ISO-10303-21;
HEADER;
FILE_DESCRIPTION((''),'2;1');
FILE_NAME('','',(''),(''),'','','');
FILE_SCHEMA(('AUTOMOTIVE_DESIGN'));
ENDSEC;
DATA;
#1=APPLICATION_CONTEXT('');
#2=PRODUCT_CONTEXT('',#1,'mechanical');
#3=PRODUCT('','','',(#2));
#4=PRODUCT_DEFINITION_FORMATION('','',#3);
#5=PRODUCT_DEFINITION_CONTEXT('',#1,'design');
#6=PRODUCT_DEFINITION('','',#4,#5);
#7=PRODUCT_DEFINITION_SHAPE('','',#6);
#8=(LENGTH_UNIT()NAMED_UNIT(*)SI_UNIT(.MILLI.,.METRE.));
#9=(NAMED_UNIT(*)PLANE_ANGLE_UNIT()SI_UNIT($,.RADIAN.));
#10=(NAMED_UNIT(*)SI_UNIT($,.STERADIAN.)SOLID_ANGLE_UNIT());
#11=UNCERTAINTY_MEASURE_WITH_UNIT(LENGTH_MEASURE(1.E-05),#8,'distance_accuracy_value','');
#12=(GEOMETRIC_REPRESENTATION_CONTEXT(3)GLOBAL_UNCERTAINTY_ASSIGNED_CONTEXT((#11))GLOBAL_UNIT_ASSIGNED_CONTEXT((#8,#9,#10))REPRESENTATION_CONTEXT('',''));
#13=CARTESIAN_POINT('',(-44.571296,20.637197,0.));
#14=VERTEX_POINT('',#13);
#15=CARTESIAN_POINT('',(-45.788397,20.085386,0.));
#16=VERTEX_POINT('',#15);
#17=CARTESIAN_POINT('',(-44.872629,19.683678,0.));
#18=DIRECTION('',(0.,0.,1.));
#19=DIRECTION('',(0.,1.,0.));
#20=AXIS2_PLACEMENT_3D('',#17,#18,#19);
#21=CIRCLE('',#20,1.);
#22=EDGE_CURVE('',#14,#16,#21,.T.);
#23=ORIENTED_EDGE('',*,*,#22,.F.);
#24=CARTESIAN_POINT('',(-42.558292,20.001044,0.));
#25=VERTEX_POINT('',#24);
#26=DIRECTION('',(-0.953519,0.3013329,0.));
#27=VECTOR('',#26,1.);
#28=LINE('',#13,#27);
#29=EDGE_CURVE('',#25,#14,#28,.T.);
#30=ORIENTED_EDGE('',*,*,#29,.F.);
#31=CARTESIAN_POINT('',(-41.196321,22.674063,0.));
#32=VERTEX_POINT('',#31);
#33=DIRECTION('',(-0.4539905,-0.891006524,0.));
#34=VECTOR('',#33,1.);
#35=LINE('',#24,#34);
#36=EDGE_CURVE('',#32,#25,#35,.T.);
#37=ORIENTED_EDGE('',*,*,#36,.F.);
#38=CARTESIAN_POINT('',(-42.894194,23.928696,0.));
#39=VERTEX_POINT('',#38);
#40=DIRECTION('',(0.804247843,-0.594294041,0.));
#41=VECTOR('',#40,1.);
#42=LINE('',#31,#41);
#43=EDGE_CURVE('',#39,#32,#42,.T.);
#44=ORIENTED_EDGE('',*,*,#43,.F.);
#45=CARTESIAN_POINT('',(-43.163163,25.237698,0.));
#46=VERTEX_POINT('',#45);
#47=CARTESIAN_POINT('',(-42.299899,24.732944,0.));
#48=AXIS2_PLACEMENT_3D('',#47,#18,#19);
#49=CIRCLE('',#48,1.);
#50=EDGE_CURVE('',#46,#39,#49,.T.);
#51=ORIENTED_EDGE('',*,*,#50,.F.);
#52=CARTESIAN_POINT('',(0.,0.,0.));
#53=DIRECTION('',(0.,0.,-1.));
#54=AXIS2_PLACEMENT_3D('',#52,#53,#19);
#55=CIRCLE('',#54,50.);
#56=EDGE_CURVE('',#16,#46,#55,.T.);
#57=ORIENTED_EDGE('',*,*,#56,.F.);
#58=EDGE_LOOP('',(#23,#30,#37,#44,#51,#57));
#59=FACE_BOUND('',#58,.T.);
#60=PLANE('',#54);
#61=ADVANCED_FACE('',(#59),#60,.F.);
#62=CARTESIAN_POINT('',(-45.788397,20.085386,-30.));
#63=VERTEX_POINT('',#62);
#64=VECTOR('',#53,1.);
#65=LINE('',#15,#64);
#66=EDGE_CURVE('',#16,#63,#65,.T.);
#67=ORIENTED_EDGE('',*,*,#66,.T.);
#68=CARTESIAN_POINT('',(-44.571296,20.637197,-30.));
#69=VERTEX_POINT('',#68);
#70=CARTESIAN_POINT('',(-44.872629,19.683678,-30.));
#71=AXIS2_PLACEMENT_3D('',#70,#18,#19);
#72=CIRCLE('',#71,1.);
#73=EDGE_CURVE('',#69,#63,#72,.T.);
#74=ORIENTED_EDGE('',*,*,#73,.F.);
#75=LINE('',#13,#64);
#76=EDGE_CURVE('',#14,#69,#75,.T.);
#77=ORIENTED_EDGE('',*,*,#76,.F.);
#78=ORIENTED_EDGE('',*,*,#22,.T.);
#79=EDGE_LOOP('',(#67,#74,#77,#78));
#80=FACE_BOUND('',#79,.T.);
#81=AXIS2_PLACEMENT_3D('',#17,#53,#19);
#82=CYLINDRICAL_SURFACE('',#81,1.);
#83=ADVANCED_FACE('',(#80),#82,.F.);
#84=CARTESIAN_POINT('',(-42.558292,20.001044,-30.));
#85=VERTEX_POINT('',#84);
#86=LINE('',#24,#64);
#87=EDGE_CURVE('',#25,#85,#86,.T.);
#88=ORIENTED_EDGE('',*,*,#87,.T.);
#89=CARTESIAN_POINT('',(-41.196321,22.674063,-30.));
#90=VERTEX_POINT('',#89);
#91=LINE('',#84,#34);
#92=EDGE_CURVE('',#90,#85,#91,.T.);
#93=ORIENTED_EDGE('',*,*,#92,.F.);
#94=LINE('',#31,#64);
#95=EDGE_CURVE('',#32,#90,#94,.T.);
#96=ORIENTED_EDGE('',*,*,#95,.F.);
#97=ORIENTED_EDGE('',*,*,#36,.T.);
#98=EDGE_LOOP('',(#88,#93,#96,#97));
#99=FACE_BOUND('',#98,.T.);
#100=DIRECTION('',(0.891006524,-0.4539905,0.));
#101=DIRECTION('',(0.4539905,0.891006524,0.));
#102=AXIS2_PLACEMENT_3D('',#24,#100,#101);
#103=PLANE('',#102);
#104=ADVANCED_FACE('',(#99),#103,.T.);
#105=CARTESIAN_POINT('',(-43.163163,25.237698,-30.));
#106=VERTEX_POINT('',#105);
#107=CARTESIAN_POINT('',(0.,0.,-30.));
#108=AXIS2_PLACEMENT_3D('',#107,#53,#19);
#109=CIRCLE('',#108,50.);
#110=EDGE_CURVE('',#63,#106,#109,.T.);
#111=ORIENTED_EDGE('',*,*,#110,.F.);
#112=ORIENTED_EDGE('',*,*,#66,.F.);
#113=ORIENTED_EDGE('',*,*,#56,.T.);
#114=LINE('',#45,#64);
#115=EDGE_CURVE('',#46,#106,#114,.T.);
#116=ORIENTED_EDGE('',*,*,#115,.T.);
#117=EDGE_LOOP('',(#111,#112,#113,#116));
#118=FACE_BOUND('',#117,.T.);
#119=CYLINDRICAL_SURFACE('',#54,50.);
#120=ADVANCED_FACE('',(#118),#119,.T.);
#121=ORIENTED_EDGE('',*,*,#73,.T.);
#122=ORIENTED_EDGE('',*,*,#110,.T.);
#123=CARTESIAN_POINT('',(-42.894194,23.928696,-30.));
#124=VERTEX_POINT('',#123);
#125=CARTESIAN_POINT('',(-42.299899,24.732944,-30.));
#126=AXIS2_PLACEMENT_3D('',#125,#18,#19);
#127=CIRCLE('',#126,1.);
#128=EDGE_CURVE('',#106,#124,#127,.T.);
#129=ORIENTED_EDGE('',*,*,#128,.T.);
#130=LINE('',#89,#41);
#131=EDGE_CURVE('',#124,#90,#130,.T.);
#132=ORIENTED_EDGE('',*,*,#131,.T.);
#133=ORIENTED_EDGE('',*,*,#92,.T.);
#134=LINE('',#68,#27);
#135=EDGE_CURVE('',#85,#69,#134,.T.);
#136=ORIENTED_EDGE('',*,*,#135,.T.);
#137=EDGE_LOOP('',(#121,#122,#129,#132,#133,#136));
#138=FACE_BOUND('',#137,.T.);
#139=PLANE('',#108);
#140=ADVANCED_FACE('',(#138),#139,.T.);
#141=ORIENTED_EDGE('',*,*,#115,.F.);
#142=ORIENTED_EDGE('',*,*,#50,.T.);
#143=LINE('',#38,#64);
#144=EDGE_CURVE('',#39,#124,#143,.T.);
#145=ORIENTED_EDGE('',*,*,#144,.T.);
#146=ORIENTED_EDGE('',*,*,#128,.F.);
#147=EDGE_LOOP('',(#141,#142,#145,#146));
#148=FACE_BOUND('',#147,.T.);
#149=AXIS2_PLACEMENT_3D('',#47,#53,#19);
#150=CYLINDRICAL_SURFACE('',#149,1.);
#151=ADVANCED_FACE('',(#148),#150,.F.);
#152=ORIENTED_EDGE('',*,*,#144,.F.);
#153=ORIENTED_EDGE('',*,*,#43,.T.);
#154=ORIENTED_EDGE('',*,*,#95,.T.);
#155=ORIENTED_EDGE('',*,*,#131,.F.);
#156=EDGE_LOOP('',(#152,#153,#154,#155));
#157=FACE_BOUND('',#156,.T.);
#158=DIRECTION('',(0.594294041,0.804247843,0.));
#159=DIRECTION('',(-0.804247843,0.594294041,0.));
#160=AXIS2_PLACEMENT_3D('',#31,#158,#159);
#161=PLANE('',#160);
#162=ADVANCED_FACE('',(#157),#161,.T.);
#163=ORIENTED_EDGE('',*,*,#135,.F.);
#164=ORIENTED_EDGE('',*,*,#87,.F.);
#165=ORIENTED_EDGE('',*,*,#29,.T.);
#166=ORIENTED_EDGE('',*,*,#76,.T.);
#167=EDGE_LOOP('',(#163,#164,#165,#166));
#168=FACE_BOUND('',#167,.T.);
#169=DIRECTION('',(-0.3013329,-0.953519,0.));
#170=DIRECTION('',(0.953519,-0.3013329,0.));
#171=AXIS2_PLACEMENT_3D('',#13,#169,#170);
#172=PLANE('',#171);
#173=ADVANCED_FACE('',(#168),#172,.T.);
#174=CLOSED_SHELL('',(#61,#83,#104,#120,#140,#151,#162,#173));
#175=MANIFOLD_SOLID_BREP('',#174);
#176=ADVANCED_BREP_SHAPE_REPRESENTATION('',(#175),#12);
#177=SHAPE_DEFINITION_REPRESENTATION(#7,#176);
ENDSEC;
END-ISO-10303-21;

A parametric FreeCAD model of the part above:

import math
import FreeCAD as App
import Part
import Sketcher
Q = App.Units.Quantity

doc = App.newDocument("Part")
body = doc.addObject("PartDesign::Body", "Body")

# Sketch on XY plane
sketch1 = doc.addObject("Sketcher::SketchObject", "Sketch")
body.addObject(sketch1)
sketch1.AttachmentSupport = (doc.XY_Plane, [""])
sketch1.MapMode = "FlatFace"
sketch1.AttachmentOffset = App.Placement(App.Vector(0, 0, -30), App.Rotation())
sketch1.addGeometry([
    Part.LineSegment(App.Vector(-42.558292, 20.001044, 0), App.Vector(-44.571296, 20.637197, 0)),  # 0
    Part.ArcOfCircle(Part.Circle(App.Vector(-44.872629, 19.683678, 0), App.Vector(0, 0, 1), 1), math.radians(72.462322), math.radians(156.315021)),  # 1
    Part.ArcOfCircle(Part.Circle(App.Vector(0, 0, 0), App.Vector(0, 0, 1), 50), math.radians(149.684979), math.radians(156.315021)),  # 2
    Part.ArcOfCircle(Part.Circle(App.Vector(-42.299899, 24.732944, 0), App.Vector(0, 0, 1), 1), math.radians(149.68498), math.radians(233.537678)),  # 3
    Part.LineSegment(App.Vector(-42.894194, 23.928696, 0), App.Vector(-41.196321, 22.674063, 0)),  # 4
    Part.LineSegment(App.Vector(-41.196321, 22.674063, 0), App.Vector(-42.558292, 20.001044, 0)),  # 5
], False)
sketch1.addConstraint([
    Sketcher.Constraint("Tangent", 0, 2, 1, 1),
    Sketcher.Constraint("Tangent", 1, 2, 2, 2),
    Sketcher.Constraint("Tangent", 2, 1, 3, 1),
    Sketcher.Constraint("Tangent", 3, 2, 4, 1),
    Sketcher.Constraint("Coincident", 4, 2, 5, 1),
    Sketcher.Constraint("Coincident", 5, 2, 0, 1),
    Sketcher.Constraint("Coincident", 2, 3, -1, 1),
    Sketcher.Constraint("Equal", 1, 3),
    Sketcher.Constraint("Equal", 0, 4),
    Sketcher.Constraint("Radius", 1, 1.0),
    Sketcher.Constraint("Radius", 2, 50.0),
    Sketcher.Constraint("Angle", 5, Q("-117 deg")),
    Sketcher.Constraint("Distance", 5, 3.0),
    Sketcher.Constraint("DistanceY", 3, 2, 2, 1, 1.309002),
    Sketcher.Constraint("DistanceX", 3, 3, -1, 1, 42.299899),
    Sketcher.Constraint("DistanceX", 1, 2, 0, 2, 1.217101),
])
pad1 = doc.addObject("PartDesign::Pad", "Pad")
body.addObject(pad1)
pad1.Profile = sketch1
pad1.Length = 30

doc.recompute()
